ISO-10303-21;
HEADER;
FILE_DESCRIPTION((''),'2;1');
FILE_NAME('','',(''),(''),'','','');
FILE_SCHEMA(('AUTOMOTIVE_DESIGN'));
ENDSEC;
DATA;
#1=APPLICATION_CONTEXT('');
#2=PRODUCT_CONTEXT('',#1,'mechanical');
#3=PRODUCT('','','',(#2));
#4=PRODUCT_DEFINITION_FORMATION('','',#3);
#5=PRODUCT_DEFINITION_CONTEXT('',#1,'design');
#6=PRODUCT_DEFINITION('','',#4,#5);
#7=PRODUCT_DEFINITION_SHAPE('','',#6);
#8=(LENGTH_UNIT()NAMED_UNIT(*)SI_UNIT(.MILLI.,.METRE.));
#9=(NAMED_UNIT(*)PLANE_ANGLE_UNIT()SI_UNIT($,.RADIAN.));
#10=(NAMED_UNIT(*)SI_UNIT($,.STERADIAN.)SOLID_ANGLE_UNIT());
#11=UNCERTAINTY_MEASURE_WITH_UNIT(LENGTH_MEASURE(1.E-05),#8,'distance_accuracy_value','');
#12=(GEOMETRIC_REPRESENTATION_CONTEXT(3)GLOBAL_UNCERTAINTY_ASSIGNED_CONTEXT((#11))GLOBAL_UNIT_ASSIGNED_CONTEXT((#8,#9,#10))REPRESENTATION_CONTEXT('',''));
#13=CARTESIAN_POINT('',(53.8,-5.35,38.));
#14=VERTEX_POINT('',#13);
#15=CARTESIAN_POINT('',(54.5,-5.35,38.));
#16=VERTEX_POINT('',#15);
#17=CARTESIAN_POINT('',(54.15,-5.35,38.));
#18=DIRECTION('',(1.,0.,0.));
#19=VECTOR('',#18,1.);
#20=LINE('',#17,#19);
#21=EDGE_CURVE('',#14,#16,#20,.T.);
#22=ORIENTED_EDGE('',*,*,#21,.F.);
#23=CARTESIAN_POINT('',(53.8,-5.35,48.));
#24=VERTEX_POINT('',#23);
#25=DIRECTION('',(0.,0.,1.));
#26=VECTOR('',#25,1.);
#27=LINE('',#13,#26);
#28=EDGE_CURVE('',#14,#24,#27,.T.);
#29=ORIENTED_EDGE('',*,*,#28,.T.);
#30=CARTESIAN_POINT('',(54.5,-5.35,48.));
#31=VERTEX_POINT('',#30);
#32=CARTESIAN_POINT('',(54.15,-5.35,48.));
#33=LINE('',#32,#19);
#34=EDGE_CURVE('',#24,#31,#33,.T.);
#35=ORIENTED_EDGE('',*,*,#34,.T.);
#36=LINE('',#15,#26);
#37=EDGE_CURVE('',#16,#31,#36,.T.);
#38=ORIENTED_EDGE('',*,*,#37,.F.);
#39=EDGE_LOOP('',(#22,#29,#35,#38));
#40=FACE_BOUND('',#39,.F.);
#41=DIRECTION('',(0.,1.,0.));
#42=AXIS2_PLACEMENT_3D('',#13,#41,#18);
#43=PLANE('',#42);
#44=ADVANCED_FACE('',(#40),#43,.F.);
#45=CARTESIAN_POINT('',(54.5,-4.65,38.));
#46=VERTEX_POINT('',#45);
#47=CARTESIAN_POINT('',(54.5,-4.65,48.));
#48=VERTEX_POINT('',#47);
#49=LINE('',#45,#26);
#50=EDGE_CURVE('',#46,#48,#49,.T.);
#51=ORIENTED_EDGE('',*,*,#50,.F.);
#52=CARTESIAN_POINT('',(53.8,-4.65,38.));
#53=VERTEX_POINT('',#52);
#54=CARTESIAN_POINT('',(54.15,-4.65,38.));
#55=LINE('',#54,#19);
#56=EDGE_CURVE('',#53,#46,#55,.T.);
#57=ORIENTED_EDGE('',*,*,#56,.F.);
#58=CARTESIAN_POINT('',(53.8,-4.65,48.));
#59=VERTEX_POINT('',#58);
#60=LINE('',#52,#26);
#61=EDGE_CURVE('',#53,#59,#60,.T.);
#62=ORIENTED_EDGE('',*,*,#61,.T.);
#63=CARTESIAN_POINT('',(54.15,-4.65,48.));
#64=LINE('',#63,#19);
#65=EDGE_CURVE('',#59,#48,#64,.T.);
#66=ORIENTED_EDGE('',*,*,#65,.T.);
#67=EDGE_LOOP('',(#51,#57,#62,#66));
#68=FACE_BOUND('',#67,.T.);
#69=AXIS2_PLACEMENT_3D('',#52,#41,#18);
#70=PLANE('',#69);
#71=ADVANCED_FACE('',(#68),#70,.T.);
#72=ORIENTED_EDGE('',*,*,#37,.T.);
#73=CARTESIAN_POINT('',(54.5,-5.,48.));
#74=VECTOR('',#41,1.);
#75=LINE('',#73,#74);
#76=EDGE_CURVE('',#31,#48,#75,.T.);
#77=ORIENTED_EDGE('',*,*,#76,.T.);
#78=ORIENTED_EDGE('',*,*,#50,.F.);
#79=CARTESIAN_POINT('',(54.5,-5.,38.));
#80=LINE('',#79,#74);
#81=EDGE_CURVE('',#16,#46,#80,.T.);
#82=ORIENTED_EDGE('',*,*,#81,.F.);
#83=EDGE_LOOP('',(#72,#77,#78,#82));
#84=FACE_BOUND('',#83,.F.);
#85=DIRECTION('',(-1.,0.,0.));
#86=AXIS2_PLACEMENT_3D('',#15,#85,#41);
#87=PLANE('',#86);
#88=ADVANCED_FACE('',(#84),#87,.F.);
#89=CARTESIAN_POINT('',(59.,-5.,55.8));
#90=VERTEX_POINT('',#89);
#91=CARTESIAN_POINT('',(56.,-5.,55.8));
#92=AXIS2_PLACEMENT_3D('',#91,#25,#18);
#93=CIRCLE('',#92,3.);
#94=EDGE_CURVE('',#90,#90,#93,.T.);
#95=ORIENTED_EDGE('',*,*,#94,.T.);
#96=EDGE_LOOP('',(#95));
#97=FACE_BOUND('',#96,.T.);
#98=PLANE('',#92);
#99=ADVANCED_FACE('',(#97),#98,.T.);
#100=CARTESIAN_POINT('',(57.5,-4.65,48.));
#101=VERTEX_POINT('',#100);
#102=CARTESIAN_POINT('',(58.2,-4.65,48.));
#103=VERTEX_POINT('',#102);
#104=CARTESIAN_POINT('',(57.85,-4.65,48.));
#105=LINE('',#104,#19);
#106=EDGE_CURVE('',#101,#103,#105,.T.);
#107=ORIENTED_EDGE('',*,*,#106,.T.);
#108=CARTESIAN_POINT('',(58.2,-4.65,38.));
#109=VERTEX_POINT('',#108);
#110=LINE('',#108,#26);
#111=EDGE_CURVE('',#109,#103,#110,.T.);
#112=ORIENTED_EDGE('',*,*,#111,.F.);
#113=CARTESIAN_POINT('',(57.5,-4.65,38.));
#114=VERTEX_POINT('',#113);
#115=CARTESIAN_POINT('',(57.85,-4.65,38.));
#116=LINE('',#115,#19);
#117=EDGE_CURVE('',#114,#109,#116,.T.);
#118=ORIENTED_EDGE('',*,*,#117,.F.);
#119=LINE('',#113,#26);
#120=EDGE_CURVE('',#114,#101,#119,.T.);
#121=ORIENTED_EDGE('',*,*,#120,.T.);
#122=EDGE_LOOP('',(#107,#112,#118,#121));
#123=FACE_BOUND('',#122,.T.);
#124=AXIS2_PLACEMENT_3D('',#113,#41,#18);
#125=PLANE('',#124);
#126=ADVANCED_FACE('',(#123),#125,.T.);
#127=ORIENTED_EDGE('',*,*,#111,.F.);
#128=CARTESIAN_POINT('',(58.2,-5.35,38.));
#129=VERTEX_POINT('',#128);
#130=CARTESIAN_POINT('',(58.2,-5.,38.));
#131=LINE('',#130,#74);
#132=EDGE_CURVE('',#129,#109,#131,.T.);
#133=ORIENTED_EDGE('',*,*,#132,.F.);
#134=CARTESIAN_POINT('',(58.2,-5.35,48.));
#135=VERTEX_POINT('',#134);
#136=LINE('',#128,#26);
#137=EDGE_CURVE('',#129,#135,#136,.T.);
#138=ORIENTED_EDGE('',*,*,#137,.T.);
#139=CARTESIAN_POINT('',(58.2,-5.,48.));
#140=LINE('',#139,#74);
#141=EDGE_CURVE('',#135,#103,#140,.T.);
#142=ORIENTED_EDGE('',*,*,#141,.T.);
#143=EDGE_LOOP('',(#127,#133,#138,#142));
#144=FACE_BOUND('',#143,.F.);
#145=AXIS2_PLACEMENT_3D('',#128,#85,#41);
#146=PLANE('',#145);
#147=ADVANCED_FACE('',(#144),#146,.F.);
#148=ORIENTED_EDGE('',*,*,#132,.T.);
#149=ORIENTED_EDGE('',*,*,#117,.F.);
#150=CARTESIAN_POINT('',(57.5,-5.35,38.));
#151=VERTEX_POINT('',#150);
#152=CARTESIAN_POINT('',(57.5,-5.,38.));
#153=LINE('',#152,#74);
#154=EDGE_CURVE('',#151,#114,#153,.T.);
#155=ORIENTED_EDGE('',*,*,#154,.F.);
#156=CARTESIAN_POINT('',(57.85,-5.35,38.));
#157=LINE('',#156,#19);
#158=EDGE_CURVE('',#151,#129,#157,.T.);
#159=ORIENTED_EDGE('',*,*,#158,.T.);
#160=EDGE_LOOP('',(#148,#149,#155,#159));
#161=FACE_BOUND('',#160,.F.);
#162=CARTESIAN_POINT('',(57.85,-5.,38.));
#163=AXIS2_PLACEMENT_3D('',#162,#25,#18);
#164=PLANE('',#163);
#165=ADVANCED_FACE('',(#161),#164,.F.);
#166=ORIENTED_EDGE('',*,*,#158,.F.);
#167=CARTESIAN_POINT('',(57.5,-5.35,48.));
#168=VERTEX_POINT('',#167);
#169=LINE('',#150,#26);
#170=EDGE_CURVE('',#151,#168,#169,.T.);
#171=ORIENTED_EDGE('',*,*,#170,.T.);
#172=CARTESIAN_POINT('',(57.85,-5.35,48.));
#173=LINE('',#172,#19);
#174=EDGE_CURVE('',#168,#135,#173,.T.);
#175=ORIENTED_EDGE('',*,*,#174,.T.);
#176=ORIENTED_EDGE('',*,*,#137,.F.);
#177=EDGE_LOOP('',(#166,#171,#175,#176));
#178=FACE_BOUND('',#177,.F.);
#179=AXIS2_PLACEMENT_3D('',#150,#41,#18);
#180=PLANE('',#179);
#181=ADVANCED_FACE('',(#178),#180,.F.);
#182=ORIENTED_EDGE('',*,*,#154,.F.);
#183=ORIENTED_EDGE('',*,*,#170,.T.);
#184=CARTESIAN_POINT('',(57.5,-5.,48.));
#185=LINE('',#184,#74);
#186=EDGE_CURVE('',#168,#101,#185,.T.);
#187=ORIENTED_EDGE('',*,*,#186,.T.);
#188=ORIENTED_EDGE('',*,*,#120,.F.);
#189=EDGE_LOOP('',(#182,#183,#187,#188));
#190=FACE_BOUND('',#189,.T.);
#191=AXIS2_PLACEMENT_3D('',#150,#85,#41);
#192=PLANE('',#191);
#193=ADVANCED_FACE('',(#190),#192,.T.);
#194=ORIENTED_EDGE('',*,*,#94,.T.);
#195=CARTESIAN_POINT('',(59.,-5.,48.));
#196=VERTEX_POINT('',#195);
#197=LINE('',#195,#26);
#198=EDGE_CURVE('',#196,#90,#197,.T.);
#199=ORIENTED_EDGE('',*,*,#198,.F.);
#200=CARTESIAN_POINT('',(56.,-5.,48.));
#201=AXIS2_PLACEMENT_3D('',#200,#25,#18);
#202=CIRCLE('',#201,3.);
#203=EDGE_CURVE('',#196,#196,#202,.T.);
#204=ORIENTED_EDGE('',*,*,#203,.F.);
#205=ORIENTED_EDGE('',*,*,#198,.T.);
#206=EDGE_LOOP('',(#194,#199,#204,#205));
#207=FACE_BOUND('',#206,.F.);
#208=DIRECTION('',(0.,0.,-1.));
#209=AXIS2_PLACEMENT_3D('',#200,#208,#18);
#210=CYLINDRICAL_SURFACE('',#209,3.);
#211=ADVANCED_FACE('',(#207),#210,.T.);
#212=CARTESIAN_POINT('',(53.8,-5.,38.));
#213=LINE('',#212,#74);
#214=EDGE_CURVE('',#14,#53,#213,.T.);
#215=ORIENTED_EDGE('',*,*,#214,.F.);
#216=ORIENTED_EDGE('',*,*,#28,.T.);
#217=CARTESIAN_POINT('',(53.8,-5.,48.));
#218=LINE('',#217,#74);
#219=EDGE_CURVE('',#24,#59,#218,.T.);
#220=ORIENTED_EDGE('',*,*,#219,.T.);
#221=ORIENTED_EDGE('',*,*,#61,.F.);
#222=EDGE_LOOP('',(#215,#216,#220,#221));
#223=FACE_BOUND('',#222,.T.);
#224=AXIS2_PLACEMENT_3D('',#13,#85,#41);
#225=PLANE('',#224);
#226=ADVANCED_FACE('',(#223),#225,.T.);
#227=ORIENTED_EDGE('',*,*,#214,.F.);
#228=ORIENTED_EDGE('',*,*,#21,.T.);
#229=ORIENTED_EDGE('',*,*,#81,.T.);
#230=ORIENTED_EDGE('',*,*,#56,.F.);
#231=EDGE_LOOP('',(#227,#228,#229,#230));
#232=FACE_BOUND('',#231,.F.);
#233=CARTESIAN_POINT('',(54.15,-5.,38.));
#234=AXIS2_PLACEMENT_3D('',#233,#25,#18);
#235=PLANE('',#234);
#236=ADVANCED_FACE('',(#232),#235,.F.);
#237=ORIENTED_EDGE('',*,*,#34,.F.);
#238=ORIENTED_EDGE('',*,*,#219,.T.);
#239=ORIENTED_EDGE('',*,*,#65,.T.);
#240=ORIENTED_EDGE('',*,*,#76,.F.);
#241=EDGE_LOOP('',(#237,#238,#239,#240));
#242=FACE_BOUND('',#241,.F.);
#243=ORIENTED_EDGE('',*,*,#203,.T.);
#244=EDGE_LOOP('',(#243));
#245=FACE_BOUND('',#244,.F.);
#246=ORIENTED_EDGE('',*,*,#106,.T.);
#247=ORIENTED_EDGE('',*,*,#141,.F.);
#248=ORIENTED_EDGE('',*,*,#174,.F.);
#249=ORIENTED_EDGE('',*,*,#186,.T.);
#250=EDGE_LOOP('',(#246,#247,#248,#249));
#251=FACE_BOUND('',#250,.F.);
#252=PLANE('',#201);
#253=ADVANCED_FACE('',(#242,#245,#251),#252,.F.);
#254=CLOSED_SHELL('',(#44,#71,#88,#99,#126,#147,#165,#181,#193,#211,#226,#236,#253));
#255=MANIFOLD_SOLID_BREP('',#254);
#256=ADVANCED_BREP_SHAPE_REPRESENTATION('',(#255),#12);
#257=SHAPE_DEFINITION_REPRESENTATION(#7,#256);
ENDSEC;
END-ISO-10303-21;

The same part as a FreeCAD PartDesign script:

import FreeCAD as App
import Part
import Sketcher

V = App.Vector
Q = App.Units.Quantity

doc = App.newDocument("Part")
params = doc.addObject("Spreadsheet::Sheet", "Params")
for row, (alias, value) in enumerate([
    ("sketch1_width", "0.7 mm"),
    ("pad1_length", "10 mm"),
    ("sketch2_diameter", "6 mm"),
    ("pad2_length", "7.8 mm"),
], start=1):
    params.set(f"A{row}", alias)
    params.set(f"B{row}", "=" + value)
    params.setAlias(f"B{row}", alias)

body = doc.addObject("PartDesign::Body", "Body")
body.AllowCompound = True

sketch1 = body.newObject("Sketcher::SketchObject", "Sketch")
sketch1.AttachmentSupport = (doc.getObject("XY_Plane"), [""])
sketch1.MapMode = "FlatFace"
sketch1.addGeometry([
    Part.LineSegment(V(-2.2, 0.3, 0), V(-2.2, -0.3, 0)),
    Part.LineSegment(V(-2.2, -0.3, 0), V(-1.5, -0.3, 0)),
    Part.LineSegment(V(-1.5, -0.3, 0), V(-1.5, 0.3, 0)),
    Part.LineSegment(V(-1.5, 0.3, 0), V(-2.2, 0.3, 0)),
    Part.LineSegment(V(1.5, 0.3, 0), V(1.5, -0.3, 0)),
    Part.LineSegment(V(1.5, -0.3, 0), V(2.2, -0.3, 0)),
    Part.LineSegment(V(2.2, -0.3, 0), V(2.2, 0.3, 0)),
    Part.LineSegment(V(2.2, 0.3, 0), V(1.5, 0.3, 0)),
], False)
sketch1.addConstraint([
    Sketcher.Constraint("Coincident", 0, 2, 1, 1),
    Sketcher.Constraint("Coincident", 1, 2, 2, 1),
    Sketcher.Constraint("Coincident", 2, 2, 3, 1),
    Sketcher.Constraint("Coincident", 3, 2, 0, 1),
    Sketcher.Constraint("Coincident", 4, 2, 5, 1),
    Sketcher.Constraint("Coincident", 5, 2, 6, 1),
    Sketcher.Constraint("Coincident", 6, 2, 7, 1),
    Sketcher.Constraint("Coincident", 7, 2, 4, 1),
    Sketcher.Constraint("Vertical", 0),
    Sketcher.Constraint("Horizontal", 1),
    Sketcher.Constraint("Vertical", 2),
    Sketcher.Constraint("Horizontal", 3),
    Sketcher.Constraint("Vertical", 4),
    Sketcher.Constraint("Horizontal", 5),
    Sketcher.Constraint("Vertical", 6),
    Sketcher.Constraint("Horizontal", 7),
    Sketcher.Constraint("Symmetric", 2, 2, 4, 2, -1, 1),
    Sketcher.Constraint("Symmetric", 0, 2, 6, 2, -1, 1),
    Sketcher.Constraint("Horizontal", 1, 2, 4, 2),
    Sketcher.Constraint("Equal", 7, 0),
    Sketcher.Constraint("DistanceX", 1, 1, 1, 2, Q("0.7 mm")),
    Sketcher.Constraint("DistanceX", 1, 2, 4, 2, Q("3 mm")),
])
sketch1.setExpression("Constraints[20]", "Params.sketch1_width")
pad1 = body.newObject("PartDesign::Pad", "Pad")
pad1.Profile = sketch1
pad1.setExpression("Length", "Params.pad1_length")
body2 = doc.addObject("PartDesign::Body", "Body001")

sketch2 = body2.newObject("Sketcher::SketchObject", "Sketch001")
sketch2.AttachmentSupport = (doc.getObject("XY_Plane001"), [""])
sketch2.MapMode = "FlatFace"
sketch2.AttachmentOffset = App.Placement(V(0, 0, 10), App.Rotation())
sketch2.addGeometry(Part.Circle(V(0, 0, 0), V(0, 0, 1), 3), False)
sketch2.addConstraint([
    Sketcher.Constraint("Coincident", 0, 3, -1, 1),
    Sketcher.Constraint("Diameter", 0, Q("6 mm")),
])
sketch2.setExpression("Constraints[1]", "Params.sketch2_diameter")
pad2 = body2.newObject("PartDesign::Pad", "Pad001")
pad2.Profile = sketch2
pad2.setExpression("Length", "Params.pad2_length")
doc.recompute()

boolean = body2.newObject("PartDesign::Boolean", "Boolean")
boolean.Type = "Fuse"
boolean.addObjects([body])
body3 = doc.addObject("PartDesign::Body", "Body002")
doc.recompute()

body2.Placement = App.Placement(V(56, -5, 38), App.Rotation(V(0, 0, 1), 0))
boolean2 = body3.newObject("PartDesign::Boolean", "Boolean001")
boolean2.Type = "Fuse"
boolean2.addObjects([body2])

doc.recompute()
